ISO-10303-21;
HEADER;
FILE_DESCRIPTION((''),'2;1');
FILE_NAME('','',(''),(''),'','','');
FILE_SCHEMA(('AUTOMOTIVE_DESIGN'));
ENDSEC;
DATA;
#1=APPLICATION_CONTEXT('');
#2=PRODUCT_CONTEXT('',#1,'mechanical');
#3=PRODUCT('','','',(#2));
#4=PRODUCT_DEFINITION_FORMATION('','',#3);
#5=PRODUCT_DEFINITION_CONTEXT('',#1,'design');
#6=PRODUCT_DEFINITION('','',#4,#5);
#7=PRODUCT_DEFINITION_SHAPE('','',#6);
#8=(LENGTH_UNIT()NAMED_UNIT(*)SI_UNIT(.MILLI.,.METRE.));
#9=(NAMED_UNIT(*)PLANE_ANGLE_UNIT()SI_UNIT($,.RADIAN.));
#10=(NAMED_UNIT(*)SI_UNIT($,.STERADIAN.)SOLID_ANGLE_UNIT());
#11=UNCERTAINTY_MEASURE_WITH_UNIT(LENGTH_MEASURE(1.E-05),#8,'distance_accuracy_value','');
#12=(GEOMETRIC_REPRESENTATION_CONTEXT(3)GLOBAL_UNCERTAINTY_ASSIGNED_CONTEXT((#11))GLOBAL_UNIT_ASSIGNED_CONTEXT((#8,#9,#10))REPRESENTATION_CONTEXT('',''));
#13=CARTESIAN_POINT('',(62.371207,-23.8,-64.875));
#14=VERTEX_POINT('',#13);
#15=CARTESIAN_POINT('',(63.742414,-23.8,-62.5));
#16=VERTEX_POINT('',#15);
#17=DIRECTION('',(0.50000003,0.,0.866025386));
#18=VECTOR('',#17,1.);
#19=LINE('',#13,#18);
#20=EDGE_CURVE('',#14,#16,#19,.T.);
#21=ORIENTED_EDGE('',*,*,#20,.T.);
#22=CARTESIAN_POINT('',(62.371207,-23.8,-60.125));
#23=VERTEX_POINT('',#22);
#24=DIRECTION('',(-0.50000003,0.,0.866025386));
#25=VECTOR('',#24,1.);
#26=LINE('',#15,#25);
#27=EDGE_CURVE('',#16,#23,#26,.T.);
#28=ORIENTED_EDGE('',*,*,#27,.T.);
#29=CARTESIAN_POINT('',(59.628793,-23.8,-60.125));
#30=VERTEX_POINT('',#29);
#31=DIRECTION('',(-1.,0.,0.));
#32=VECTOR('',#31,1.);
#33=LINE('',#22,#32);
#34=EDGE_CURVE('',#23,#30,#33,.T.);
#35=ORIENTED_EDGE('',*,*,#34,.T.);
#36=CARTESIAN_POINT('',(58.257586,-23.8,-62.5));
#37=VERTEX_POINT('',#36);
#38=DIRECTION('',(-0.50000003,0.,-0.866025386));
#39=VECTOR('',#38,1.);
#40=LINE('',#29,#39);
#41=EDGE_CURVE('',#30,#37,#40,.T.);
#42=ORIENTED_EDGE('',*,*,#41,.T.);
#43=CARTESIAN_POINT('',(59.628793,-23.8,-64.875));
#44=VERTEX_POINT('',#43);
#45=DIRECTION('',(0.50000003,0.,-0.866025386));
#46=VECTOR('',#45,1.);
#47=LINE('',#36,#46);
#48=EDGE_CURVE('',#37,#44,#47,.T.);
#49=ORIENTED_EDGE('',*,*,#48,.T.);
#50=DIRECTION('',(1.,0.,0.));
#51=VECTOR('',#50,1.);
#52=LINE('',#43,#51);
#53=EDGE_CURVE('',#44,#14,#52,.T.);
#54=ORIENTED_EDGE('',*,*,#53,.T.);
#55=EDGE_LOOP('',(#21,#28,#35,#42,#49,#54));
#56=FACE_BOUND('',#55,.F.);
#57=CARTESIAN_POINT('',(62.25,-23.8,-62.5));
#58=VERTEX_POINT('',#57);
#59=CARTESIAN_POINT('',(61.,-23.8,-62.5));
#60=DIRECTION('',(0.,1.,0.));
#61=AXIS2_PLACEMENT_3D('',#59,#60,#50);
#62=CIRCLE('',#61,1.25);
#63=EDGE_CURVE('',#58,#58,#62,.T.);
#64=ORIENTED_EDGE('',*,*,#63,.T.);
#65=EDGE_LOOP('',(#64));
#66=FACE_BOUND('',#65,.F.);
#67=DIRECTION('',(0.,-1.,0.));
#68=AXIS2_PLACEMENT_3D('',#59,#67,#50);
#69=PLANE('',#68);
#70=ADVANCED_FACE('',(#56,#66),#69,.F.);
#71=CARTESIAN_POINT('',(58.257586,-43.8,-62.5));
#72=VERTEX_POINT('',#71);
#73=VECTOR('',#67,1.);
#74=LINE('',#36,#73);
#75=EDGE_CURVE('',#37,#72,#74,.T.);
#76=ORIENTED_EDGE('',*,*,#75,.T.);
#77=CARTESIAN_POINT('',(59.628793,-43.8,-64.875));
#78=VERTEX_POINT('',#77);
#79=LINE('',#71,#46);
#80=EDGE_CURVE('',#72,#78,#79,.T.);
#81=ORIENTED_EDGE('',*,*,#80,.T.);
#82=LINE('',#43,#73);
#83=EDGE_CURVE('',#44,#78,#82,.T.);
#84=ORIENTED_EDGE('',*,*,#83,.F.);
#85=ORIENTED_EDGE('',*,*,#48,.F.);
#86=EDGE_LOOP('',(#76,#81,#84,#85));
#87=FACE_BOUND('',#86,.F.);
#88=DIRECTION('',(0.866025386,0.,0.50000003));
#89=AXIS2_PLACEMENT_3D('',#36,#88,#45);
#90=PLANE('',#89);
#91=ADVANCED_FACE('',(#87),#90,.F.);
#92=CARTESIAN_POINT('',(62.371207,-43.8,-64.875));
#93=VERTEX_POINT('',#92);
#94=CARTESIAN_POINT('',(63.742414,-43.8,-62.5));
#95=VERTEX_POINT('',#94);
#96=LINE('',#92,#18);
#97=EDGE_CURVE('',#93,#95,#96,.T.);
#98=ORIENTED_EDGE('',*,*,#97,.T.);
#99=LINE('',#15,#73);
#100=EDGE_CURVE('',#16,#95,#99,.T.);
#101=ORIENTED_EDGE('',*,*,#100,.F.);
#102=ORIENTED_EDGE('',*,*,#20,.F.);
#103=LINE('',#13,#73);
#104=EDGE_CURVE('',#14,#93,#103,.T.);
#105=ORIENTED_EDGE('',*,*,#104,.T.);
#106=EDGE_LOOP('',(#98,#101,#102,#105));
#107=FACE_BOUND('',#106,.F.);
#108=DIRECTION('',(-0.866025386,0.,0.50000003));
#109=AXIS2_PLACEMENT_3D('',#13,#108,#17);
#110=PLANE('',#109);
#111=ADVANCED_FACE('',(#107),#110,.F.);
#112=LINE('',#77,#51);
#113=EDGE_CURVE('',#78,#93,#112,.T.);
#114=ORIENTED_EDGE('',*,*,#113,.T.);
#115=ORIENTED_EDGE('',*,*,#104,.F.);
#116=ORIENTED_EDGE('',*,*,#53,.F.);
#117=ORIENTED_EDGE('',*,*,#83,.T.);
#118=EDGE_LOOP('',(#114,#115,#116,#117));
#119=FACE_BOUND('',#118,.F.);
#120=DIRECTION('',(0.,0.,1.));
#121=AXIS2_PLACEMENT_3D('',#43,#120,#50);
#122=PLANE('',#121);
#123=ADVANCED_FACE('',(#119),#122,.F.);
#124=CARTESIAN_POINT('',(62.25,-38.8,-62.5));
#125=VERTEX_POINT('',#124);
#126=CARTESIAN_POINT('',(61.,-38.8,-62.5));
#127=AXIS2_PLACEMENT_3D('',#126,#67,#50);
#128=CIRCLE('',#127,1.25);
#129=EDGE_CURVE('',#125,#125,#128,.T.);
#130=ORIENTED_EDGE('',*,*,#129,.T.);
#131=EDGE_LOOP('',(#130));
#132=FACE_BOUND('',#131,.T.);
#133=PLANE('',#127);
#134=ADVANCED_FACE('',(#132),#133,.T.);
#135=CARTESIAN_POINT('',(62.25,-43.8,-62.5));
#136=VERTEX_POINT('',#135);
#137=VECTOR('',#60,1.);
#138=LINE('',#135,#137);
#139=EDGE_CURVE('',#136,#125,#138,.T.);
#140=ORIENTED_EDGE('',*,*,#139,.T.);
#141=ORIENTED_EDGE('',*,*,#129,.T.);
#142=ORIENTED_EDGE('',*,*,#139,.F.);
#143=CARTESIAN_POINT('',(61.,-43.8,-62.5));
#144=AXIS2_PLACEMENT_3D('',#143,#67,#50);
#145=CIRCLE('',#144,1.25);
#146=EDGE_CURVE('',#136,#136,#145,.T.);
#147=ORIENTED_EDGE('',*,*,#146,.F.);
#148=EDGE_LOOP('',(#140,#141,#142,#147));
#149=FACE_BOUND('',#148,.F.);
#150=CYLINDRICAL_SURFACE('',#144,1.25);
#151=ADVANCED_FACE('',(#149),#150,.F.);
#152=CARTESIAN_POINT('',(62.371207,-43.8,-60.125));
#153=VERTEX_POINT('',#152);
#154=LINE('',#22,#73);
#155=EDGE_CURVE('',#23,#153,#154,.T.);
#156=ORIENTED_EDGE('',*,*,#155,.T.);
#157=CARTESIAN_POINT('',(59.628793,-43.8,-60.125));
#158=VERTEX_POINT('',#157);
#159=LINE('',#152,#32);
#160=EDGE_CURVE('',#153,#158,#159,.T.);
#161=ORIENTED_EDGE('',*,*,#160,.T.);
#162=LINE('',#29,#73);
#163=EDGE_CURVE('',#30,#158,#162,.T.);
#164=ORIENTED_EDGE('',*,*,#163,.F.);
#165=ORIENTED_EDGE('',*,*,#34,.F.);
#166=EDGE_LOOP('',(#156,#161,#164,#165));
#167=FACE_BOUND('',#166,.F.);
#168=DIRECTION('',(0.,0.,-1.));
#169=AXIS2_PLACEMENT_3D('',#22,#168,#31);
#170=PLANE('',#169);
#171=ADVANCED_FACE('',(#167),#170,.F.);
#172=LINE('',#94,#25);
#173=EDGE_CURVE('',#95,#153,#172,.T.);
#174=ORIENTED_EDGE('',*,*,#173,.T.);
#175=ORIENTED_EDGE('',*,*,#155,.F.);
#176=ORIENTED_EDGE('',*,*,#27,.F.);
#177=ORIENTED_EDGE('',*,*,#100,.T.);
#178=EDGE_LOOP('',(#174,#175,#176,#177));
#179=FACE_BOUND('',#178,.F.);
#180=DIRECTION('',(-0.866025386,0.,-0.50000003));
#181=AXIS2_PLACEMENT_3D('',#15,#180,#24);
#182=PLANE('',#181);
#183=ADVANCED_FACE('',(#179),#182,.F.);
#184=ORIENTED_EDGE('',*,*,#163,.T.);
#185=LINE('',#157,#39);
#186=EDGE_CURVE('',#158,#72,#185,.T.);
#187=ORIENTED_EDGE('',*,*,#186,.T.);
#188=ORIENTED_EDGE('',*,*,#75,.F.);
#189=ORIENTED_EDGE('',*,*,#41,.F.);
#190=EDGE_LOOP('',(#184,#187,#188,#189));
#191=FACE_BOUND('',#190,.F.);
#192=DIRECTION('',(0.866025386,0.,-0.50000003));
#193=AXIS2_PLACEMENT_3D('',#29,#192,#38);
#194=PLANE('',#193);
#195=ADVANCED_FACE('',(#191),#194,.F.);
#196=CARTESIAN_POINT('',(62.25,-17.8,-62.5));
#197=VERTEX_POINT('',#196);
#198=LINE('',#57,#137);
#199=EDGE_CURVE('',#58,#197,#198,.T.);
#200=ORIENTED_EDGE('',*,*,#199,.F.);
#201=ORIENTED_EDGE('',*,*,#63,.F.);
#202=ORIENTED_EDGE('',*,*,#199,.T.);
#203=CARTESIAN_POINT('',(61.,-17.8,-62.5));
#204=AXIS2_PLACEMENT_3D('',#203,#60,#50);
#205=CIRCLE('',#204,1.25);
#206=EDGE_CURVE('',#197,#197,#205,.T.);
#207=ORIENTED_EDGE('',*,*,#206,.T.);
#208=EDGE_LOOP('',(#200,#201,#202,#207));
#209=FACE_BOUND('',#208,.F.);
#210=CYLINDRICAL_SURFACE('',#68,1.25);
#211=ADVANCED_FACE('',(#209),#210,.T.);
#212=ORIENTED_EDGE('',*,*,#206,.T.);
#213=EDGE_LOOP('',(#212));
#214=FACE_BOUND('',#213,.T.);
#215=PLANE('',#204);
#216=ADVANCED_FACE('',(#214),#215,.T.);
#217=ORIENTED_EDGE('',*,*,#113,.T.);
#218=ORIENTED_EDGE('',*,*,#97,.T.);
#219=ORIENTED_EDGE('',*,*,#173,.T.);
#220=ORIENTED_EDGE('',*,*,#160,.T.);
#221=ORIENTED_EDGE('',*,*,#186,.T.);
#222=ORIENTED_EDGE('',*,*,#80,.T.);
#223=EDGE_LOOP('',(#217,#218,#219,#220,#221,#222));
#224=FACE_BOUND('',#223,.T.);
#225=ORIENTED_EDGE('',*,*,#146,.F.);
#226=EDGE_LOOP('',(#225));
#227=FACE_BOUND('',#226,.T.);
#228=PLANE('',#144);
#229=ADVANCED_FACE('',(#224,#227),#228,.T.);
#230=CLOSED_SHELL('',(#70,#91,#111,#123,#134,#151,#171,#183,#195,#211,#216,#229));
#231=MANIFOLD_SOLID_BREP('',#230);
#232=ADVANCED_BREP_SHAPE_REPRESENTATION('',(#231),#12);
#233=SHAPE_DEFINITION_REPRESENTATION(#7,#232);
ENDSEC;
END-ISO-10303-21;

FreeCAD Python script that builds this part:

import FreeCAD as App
import Part
import Sketcher
from FreeCAD import Vector
Q = App.Units.Quantity


def add_polygon(sketch, points):
    """Adds a closed chain of lines whose ends are joined by coincident constraints."""
    first, n = sketch.GeometryCount, len(points)
    for a, b in zip(points, points[1:] + points[:1]):
        sketch.addGeometry(Part.LineSegment(App.Vector(*a, 0), App.Vector(*b, 0)), False)
    for i in range(n):
        sketch.addConstraint(Sketcher.Constraint("Coincident", first + i, 2, first + (i + 1) % n, 1))

doc = App.newDocument("Part")
params = doc.addObject("Spreadsheet::Sheet", "Params")
for row, (alias, value) in enumerate([
    ("pad1_length", "20 mm"),
    ("sketch2_diameter", "2.5 mm"),
    ("pad2_length", "6 mm"),
    ("sketch3_diameter", "2.5 mm"),
    ("pocket1_length", "5 mm"),
], start=1):
    params.set(f"A{row}", alias)
    params.set(f"B{row}", "=" + value)
    params.setAlias(f"B{row}", alias)

body = doc.addObject("PartDesign::Body", "Body")

# Sketch on XY plane
sketch1 = body.newObject("Sketcher::SketchObject", "Sketch")
sketch1.AttachmentSupport = (doc.getObject("XY_Plane"), [""])
sketch1.MapMode = "FlatFace"
add_polygon(sketch1, [(1.4, 2.4), (-1.4, 2.4), (-2.7, 0), (-1.4, -2.4), (1.4, -2.4), (2.7, 0)])  # lines 0-5
sketch1.addConstraint([
    Sketcher.Constraint("Horizontal", 0),
    Sketcher.Constraint("Horizontal", 3),
    Sketcher.Constraint("Symmetric", 0, 2, 3, 2, -1, 1),
    Sketcher.Constraint("Symmetric", 1, 2, 4, 2, -1, 1),
    Sketcher.Constraint("PointOnObject", 1, 2, -1),
    Sketcher.Constraint("Parallel", 2, 5),
    Sketcher.Constraint("Vertical", 0, 2, 2, 2),
    Sketcher.Constraint("Angle", 1, Q("-120.000002 deg")),
    Sketcher.Constraint("DistanceY", 2, 2, 0, 2, Q("4.75 mm")),
    Sketcher.Constraint("DistanceX", 0, 2, 0, 1, Q("2.742414 mm")),
])
pad1 = body.newObject("PartDesign::Pad", "Pad")
pad1.Profile = sketch1
pad1.setExpression("Length", "Params.pad1_length")

# Sketch on XY plane
sketch2 = body.newObject("Sketcher::SketchObject", "Sketch001")
sketch2.AttachmentSupport = (doc.getObject("XY_Plane"), [""])
sketch2.MapMode = "FlatFace"
sketch2.addGeometry(Part.Circle(Vector(0, 0, 0), Vector(0, 0, 1), 1.2), False)
sketch2.addConstraint([
    Sketcher.Constraint("Coincident", 0, 3, -1, 1),
    Sketcher.Constraint("Diameter", 0, Q("2.5 mm")),
])
sketch2.setExpression("Constraints[1]", "Params.sketch2_diameter")
pad2 = body.newObject("PartDesign::Pad", "Pad001")
pad2.Profile = sketch2
pad2.setExpression("Length", "Params.pad2_length")
pad2.Reversed = True

# Sketch on XY plane
sketch3 = body.newObject("Sketcher::SketchObject", "Sketch002")
sketch3.AttachmentSupport = (doc.getObject("XY_Plane"), [""])
sketch3.MapMode = "FlatFace"
sketch3.AttachmentOffset = App.Placement(Vector(0, 0, 20), App.Rotation())
sketch3.addGeometry(Part.Circle(Vector(0, 0, 0), Vector(0, 0, 1), 1.2), False)
sketch3.addConstraint([
    Sketcher.Constraint("Coincident", 0, 3, -1, 1),
    Sketcher.Constraint("Diameter", 0, Q("2.5 mm")),
])
sketch3.setExpression("Constraints[1]", "Params.sketch3_diameter")
pocket1 = body.newObject("PartDesign::Pocket", "Pocket")
pocket1.Profile = sketch3
pocket1.setExpression("Length", "Params.pocket1_length")
body2 = doc.addObject("PartDesign::Body", "Body001")
doc.recompute()

body.Placement = App.Placement(Vector(61, -23.8, -13.5), App.Rotation(Vector(1, 0, 0), 90))
boolean = body2.newObject("PartDesign::Boolean", "Boolean")
boolean.Type = "Fuse"
boolean.addObjects([body])
body3 = doc.addObject("PartDesign::Body", "Body002")
doc.recompute()

body2.Placement = App.Placement(Vector(0, 0, -49), App.Rotation(Vector(0, 0, 1), 0))
boolean2 = body3.newObject("PartDesign::Boolean", "Boolean001")
boolean2.Type = "Fuse"
boolean2.addObjects([body2])

doc.recompute()
